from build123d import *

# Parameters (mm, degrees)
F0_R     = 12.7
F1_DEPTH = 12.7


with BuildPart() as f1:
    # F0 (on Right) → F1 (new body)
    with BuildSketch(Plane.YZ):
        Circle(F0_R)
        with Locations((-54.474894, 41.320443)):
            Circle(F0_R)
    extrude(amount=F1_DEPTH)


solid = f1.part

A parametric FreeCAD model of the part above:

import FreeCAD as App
import Part
import Sketcher

V = App.Vector
Q = App.Units.Quantity

doc = App.newDocument("Part")
params = doc.addObject("Spreadsheet::Sheet", "Params")
for row, (alias, value) in enumerate([
    ("sketch1_diameter", "1 in"),
    ("pad1_length", "0.5 in"),
], start=1):
    params.set(f"A{row}", alias)
    params.set(f"B{row}", "=" + value)
    params.setAlias(f"B{row}", alias)

body = doc.addObject("PartDesign::Body", "Body")
body.AllowCompound = True

sketch1 = body.newObject("Sketcher::SketchObject", "Sketch")
sketch1.AttachmentSupport = (doc.getObject("YZ_Plane"), [""])
sketch1.MapMode = "FlatFace"
sketch1.addGeometry(Part.Circle(V(0, 0, 0), V(0, 0, 1), 12.7), False)
sketch1.addGeometry(Part.Circle(V(-54.474894, 41.320443, 0), V(0, 0, 1), 12.7), False)
sketch1.addConstraint(Sketcher.Constraint("Coincident", 0, 3, -1, 1))
sketch1.addConstraint(Sketcher.Constraint("Equal", 0, 1))
sketch1.addConstraint(Sketcher.Constraint("Diameter", 0, Q("1 in")))
sketch1.addConstraint(Sketcher.Constraint("DistanceX", 1, 3, -1, 1, Q("54.474894 mm")))
sketch1.addConstraint(Sketcher.Constraint("DistanceY", -1, 1, 1, 3, Q("41.320443 mm")))
sketch1.setExpression("Constraints[2]", "Params.sketch1_diameter")
pad1 = body.newObject("PartDesign::Pad", "Pad")
pad1.Profile = sketch1
pad1.setExpression("Length", "Params.pad1_length")

doc.recompute()
